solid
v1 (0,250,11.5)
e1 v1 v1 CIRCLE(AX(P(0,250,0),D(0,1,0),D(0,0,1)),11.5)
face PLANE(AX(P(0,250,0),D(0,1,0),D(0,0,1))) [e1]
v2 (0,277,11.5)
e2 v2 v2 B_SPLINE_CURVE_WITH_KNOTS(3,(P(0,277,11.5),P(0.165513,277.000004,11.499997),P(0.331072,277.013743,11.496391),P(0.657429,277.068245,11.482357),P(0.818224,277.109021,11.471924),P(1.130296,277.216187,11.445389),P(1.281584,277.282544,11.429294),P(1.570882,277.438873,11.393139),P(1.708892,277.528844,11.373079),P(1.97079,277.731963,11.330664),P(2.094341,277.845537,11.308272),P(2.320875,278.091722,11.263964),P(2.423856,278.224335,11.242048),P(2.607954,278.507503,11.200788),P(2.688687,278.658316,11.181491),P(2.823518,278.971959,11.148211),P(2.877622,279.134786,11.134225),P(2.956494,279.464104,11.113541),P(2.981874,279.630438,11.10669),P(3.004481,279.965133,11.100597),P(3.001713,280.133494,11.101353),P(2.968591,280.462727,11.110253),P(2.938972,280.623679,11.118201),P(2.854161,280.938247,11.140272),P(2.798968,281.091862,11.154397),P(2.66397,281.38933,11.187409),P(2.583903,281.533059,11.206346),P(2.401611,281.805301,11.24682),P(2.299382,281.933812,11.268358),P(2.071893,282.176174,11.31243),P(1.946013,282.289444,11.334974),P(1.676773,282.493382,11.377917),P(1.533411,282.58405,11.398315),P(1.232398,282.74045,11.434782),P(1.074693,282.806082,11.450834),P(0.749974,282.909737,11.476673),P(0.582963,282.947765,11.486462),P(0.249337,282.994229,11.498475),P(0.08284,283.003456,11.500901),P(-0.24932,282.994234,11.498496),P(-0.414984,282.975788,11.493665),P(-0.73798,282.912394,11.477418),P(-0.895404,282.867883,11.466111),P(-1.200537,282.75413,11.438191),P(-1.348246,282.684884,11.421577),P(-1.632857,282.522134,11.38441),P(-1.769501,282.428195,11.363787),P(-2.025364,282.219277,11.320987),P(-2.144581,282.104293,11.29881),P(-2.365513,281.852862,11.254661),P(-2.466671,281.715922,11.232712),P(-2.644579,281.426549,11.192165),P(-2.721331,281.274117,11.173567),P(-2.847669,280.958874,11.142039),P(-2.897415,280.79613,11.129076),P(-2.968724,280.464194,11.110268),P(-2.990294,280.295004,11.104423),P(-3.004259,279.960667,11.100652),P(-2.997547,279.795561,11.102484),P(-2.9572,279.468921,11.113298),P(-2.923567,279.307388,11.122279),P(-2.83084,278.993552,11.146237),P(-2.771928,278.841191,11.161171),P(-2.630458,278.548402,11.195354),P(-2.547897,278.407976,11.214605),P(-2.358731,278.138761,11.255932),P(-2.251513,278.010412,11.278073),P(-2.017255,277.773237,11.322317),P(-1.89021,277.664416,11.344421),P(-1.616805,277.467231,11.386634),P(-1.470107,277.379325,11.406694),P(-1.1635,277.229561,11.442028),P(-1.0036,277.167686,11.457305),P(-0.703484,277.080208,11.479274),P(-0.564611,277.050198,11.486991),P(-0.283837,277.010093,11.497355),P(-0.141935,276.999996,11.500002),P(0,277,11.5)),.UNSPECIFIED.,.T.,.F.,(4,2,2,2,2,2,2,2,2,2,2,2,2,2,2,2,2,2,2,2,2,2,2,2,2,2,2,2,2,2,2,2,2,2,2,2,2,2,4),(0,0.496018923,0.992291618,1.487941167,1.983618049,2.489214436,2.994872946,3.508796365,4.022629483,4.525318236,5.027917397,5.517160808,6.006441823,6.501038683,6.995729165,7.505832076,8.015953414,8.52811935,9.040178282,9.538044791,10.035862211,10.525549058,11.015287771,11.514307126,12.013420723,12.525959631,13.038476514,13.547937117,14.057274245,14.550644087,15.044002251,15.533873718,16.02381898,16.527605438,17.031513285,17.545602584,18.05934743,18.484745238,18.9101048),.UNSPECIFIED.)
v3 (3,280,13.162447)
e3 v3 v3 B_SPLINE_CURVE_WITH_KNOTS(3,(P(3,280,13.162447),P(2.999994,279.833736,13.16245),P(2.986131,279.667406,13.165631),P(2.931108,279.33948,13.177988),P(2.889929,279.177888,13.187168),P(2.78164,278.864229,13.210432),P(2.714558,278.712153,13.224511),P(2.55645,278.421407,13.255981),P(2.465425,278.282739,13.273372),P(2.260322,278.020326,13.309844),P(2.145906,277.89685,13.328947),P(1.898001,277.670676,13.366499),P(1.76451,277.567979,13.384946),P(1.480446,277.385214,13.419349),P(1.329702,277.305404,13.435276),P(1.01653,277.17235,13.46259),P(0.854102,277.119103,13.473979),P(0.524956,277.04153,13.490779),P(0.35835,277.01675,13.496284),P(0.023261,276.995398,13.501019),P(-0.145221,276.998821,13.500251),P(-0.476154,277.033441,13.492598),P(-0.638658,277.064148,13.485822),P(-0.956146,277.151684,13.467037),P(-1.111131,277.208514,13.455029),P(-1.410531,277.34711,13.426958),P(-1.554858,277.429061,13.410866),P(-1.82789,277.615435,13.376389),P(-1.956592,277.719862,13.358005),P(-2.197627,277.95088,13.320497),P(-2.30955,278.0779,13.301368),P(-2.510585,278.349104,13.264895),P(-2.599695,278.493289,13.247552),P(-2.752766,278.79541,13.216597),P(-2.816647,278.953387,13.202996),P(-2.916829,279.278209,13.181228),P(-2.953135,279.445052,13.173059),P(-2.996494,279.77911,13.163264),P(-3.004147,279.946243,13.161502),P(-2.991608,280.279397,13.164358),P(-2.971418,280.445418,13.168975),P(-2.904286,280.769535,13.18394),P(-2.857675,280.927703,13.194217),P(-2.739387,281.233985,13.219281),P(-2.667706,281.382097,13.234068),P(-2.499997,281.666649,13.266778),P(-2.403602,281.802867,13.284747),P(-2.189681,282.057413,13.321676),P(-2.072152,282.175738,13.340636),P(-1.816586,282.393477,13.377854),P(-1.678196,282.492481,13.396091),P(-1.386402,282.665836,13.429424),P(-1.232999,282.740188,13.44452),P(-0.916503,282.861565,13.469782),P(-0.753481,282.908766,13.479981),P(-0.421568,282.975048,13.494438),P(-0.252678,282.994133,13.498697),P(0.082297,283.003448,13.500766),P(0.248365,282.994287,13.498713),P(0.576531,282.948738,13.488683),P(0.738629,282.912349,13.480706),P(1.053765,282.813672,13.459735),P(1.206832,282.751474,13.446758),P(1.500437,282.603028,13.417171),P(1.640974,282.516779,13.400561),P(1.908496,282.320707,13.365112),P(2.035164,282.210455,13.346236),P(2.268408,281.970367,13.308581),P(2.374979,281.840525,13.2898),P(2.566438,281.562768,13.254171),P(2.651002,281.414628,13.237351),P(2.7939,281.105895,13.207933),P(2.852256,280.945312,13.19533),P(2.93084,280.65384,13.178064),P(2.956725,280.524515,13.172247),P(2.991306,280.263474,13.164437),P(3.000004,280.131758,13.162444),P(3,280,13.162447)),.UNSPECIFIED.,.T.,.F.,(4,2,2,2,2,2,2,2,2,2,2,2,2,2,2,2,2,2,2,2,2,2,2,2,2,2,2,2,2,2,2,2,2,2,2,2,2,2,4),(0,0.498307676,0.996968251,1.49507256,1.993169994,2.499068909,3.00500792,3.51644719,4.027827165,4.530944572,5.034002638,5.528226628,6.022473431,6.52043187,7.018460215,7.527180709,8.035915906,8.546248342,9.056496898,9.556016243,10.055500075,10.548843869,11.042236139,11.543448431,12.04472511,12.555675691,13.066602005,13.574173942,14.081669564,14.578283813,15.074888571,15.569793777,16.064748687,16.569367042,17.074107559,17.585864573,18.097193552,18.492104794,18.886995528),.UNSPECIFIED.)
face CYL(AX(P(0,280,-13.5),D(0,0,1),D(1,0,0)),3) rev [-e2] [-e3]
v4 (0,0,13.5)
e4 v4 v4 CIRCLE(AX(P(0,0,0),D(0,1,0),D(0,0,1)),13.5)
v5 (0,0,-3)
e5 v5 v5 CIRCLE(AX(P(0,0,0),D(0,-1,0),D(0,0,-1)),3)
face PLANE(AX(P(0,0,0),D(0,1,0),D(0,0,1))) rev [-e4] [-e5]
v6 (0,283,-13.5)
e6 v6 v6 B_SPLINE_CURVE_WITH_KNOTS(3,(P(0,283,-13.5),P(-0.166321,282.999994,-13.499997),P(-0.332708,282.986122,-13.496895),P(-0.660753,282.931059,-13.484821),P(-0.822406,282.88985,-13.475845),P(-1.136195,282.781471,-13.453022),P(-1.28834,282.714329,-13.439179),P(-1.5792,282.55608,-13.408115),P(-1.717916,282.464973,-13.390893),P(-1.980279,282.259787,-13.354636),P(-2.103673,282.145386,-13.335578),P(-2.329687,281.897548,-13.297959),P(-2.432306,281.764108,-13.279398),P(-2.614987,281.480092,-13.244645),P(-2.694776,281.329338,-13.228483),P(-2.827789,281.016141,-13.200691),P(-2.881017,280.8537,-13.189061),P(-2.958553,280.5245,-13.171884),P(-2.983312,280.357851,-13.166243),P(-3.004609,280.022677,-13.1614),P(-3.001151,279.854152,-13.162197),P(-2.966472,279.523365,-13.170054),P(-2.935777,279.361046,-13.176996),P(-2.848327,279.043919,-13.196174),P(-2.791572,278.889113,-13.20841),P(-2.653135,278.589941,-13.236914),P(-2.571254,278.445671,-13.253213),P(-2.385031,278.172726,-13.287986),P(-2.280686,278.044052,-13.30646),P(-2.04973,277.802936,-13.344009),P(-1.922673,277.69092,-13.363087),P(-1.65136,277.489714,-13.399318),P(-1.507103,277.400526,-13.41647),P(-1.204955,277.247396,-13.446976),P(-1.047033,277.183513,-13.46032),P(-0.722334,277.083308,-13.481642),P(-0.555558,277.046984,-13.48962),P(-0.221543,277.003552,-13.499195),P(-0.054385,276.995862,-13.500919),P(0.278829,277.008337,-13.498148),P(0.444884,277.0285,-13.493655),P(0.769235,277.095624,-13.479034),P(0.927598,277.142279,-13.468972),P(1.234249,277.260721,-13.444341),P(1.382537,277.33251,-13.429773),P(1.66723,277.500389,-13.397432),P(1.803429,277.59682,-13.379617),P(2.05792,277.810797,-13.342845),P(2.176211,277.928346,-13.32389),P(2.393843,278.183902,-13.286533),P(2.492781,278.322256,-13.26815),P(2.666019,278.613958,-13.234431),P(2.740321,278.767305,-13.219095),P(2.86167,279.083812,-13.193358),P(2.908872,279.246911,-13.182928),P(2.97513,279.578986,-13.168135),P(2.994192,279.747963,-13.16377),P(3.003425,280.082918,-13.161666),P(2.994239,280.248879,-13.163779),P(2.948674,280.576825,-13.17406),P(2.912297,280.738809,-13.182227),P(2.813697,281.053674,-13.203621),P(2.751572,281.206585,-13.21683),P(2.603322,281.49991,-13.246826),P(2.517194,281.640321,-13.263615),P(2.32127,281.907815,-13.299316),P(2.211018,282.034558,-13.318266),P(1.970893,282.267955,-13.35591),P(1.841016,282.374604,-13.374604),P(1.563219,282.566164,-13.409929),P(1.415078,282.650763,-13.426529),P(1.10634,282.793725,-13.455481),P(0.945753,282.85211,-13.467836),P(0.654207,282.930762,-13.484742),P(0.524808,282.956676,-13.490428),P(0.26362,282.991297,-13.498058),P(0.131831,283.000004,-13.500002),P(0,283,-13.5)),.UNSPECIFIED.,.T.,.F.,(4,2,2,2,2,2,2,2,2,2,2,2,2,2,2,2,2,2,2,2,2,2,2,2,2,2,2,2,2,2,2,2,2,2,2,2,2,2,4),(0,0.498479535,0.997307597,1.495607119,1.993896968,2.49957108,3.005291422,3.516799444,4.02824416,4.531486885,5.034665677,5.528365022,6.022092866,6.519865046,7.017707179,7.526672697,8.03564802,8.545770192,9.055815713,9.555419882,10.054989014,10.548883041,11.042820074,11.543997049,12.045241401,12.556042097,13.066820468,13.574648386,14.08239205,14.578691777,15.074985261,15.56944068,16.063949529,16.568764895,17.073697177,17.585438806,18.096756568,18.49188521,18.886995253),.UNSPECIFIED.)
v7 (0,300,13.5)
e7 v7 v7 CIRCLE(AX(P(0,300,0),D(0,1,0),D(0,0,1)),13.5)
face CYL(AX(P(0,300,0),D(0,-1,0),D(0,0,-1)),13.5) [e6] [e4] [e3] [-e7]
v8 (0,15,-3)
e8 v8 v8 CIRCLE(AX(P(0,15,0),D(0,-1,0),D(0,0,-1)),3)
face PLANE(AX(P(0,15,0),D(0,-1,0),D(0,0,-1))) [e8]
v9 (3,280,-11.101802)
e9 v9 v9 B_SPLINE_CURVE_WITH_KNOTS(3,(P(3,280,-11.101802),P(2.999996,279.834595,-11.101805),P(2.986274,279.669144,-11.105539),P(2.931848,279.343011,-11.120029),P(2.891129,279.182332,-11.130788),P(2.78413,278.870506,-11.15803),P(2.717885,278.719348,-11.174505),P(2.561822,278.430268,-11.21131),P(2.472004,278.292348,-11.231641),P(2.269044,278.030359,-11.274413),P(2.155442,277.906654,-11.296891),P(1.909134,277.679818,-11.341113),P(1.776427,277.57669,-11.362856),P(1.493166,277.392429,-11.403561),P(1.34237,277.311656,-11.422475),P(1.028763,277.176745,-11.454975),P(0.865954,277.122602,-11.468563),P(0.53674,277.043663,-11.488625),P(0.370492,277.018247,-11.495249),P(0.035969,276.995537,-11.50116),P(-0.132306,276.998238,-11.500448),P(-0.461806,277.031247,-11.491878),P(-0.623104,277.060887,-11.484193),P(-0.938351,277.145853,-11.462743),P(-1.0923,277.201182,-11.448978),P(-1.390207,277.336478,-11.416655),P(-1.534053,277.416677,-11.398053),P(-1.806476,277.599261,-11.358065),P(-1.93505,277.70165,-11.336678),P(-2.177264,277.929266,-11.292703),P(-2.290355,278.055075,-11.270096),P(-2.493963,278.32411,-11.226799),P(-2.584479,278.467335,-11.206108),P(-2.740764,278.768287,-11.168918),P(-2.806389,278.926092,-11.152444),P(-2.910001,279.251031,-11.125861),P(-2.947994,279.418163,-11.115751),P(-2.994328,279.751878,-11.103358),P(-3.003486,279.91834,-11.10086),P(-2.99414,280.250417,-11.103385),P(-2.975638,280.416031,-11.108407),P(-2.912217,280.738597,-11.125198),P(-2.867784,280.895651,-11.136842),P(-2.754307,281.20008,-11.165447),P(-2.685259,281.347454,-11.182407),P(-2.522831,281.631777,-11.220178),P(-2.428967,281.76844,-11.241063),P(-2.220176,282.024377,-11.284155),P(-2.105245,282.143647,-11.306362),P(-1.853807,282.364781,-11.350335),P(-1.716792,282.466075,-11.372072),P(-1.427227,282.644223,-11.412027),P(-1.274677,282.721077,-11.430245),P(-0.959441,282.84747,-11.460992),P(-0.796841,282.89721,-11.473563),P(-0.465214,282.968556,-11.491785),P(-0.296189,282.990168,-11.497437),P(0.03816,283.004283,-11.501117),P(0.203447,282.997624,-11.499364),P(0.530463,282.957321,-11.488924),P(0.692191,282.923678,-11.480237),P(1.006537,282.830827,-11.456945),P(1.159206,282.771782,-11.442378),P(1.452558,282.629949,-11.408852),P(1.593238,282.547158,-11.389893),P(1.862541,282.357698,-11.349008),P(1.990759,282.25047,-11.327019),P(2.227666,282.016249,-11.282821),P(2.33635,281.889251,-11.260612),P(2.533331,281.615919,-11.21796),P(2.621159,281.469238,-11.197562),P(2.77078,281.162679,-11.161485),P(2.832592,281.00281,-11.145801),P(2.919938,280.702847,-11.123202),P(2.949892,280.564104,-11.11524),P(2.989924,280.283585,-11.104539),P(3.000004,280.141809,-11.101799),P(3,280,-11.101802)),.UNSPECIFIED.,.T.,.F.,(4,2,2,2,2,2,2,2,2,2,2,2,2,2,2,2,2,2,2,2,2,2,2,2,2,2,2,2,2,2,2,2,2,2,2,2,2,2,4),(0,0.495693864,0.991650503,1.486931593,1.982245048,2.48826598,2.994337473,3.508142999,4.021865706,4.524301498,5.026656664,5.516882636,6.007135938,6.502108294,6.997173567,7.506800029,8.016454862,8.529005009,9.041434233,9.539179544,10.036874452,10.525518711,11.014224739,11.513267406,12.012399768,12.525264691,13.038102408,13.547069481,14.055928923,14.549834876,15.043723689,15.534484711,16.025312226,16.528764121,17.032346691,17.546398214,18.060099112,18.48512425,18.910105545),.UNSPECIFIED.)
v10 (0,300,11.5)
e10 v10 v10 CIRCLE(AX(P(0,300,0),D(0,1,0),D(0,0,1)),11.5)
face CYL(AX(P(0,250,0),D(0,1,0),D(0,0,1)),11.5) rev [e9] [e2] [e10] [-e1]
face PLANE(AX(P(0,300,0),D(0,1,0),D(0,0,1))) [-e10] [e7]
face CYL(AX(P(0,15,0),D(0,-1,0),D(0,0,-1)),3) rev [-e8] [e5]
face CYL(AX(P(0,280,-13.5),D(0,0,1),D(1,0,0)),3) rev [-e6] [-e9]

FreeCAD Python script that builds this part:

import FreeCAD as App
import Part
import Sketcher
from FreeCAD import Vector

doc = App.newDocument("Part")
params = doc.addObject("Spreadsheet::Sheet", "Params")
for row, (alias, value) in enumerate([
    ("sketch1_diameter", "27 mm"),
    ("pad1_length", "300 mm"),
    ("sketch2_diameter", "6 mm"),
    ("pocket1_length", "15 mm"),
    ("sketch3_diameter", "23 mm"),
    ("pocket2_length", "50 mm"),
    ("sketch4_diameter", "6 mm"),
], start=1):
    params.set(f"A{row}", alias)
    params.set(f"B{row}", "=" + value)
    params.setAlias(f"B{row}", alias)

body = doc.addObject("PartDesign::Body", "Body")

# Sketch on XZ plane
sketch1 = body.newObject("Sketcher::SketchObject", "Sketch")
sketch1.AttachmentSupport = (doc.getObject("XZ_Plane"), [""])
sketch1.MapMode = "FlatFace"
sketch1.addGeometry(Part.Circle(Vector(0, 0, 0), Vector(0, 0, 1), 13.5), False)
sketch1.addConstraint([
    Sketcher.Constraint("Coincident", 0, 3, -1, 1),
    Sketcher.Constraint("Diameter", 0, 27.0),
])
sketch1.setExpression("Constraints[1]", "Params.sketch1_diameter")
pad1 = body.newObject("PartDesign::Pad", "Pad")
pad1.Profile = sketch1
pad1.setExpression("Length", "Params.pad1_length")
pad1.Reversed = True

# Sketch on XZ plane
sketch2 = body.newObject("Sketcher::SketchObject", "Sketch001")
sketch2.AttachmentSupport = (doc.getObject("XZ_Plane"), [""])
sketch2.MapMode = "FlatFace"
sketch2.addGeometry(Part.Circle(Vector(0, 0, 0), Vector(0, 0, 1), 3), False)
sketch2.addConstraint([
    Sketcher.Constraint("Coincident", 0, 3, -1, 1),
    Sketcher.Constraint("Diameter", 0, 6.0),
])
sketch2.setExpression("Constraints[1]", "Params.sketch2_diameter")
pocket1 = body.newObject("PartDesign::Pocket", "Pocket")
pocket1.Profile = sketch2
pocket1.setExpression("Length", "Params.pocket1_length")

# Sketch on XZ plane
sketch3 = body.newObject("Sketcher::SketchObject", "Sketch002")
sketch3.AttachmentSupport = (doc.getObject("XZ_Plane"), [""])
sketch3.MapMode = "FlatFace"
sketch3.AttachmentOffset = App.Placement(Vector(0, 0, -300), App.Rotation())
sketch3.addGeometry(Part.Circle(Vector(0, 0, 0), Vector(0, 0, 1), 11.5), False)
sketch3.addConstraint([
    Sketcher.Constraint("Coincident", 0, 3, -1, 1),
    Sketcher.Constraint("Diameter", 0, 23.0),
])
sketch3.setExpression("Constraints[1]", "Params.sketch3_diameter")
pocket2 = body.newObject("PartDesign::Pocket", "Pocket001")
pocket2.Profile = sketch3
pocket2.setExpression("Length", "Params.pocket2_length")
pocket2.Reversed = True

# Sketch on XY plane
sketch4 = body.newObject("Sketcher::SketchObject", "Sketch003")
sketch4.AttachmentSupport = (doc.getObject("XY_Plane"), [""])
sketch4.MapMode = "FlatFace"
sketch4.addGeometry(Part.Circle(Vector(0, 280, 0), Vector(0, 0, 1), 3), False)
sketch4.addConstraint([
    Sketcher.Constraint("PointOnObject", 0, 3, -2),
    Sketcher.Constraint("Diameter", 0, 6.0),
    Sketcher.Constraint("DistanceY", -1, 1, 0, 3, 280.0),
])
sketch4.setExpression("Constraints[1]", "Params.sketch4_diameter")
pocket3 = body.newObject("PartDesign::Pocket", "Pocket002")
pocket3.Profile = sketch4
pocket3.Type = "ThroughAll"
pocket3.Midplane = True

doc.recompute()
